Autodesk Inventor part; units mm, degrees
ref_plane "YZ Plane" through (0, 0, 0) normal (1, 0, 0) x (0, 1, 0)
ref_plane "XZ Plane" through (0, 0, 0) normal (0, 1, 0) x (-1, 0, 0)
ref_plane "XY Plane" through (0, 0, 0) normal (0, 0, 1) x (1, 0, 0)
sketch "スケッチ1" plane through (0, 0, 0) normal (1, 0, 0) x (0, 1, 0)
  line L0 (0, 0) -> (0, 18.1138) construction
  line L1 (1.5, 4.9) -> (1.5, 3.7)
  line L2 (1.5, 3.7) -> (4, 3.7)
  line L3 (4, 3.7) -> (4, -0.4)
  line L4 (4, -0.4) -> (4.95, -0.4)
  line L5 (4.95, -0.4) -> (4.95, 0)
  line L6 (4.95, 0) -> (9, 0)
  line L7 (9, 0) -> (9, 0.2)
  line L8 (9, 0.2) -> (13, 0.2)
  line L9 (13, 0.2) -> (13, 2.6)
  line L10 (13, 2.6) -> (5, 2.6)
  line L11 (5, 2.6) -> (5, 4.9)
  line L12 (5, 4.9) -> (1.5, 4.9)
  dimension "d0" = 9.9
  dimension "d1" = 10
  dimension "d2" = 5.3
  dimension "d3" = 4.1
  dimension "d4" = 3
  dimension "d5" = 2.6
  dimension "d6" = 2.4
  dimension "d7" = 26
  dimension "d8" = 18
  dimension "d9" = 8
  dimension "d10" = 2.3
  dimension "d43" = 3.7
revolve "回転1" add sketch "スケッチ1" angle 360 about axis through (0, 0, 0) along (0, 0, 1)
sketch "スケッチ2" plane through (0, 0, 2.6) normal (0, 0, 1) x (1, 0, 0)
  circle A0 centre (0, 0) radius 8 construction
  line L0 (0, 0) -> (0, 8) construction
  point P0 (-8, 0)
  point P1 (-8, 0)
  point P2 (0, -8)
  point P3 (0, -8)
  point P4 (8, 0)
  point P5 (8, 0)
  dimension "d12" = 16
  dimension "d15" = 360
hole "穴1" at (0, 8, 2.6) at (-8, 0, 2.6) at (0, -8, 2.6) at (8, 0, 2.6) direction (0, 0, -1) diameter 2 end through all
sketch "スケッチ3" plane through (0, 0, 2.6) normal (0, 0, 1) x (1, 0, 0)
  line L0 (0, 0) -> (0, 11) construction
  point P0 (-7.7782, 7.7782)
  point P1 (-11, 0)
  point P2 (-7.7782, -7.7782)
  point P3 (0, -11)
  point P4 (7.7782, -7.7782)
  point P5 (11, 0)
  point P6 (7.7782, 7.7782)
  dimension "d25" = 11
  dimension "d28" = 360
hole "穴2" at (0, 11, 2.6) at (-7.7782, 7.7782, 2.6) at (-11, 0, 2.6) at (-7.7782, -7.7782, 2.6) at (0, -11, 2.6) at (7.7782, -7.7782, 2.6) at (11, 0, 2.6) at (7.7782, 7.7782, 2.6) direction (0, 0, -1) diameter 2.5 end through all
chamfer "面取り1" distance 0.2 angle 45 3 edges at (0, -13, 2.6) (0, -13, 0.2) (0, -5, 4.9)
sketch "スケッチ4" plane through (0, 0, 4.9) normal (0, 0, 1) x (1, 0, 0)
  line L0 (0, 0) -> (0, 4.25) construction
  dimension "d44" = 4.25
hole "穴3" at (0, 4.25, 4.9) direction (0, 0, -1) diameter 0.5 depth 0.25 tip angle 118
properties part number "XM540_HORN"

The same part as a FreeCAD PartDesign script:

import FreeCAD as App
import Part
import Sketcher

V = App.Vector


def edges_at(feature, points):
    """Names of the edges that pass closest to the given points."""
    edges = feature.Shape.Edges
    near = lambda p: min(range(len(edges)), key=lambda i: edges[i].distToShape(Part.Vertex(*p))[0])
    return sorted({f"Edge{near(p) + 1}" for p in points})


def add_polygon(sketch, points):
    """Adds a closed chain of lines whose ends are joined by coincident constraints."""
    first, n = sketch.GeometryCount, len(points)
    for a, b in zip(points, points[1:] + points[:1]):
        sketch.addGeometry(Part.LineSegment(App.Vector(*a, 0), App.Vector(*b, 0)), False)
    for i in range(n):
        sketch.addConstraint(Sketcher.Constraint("Coincident", first + i, 2, first + (i + 1) % n, 1))

doc = App.newDocument("Part")
params = doc.addObject("Spreadsheet::Sheet", "Params")
for row, (alias, value) in enumerate([
    ("sketch1_width", "8 mm"),
    ("sketch1_height", "4.1 mm"),
    ("sketch1_height2", "2.4 mm"),
    ("sketch1_height3", "2.3 mm"),
    ("sketch1_width2", "4 mm"),
    ("revolution_angle", "360 deg"),
    ("sketch2_diameter", "2 mm"),
    ("hole_diameter", "2 mm"),
    ("sketch3_diameter", "2.5 mm"),
    ("hole2_diameter", "2.5 mm"),
    ("chamfer_size", "0.2 mm"),
    ("sketch4_diameter", "0.5 mm"),
    ("hole3_diameter", "0.5 mm"),
    ("hole3_depth", "0.25 mm"),
], start=1):
    params.set(f"A{row}", alias)
    params.set(f"B{row}", "=" + value)
    params.setAlias(f"B{row}", alias)

body = doc.addObject("PartDesign::Body", "Body")

# Sketch on YZ plane
sketch1 = body.newObject("Sketcher::SketchObject", "Sketch")
sketch1.AttachmentSupport = (doc.getObject("YZ_Plane"), [""])
sketch1.MapMode = "FlatFace"
add_polygon(sketch1, [(5, 4.9), (1.5, 4.9), (1.5, 3.7), (4, 3.7), (4, -0.4), (4.95, -0.4), (4.95, 0), (9, 0), (9, 0.2), (13, 0.2), (13, 2.6), (5, 2.6)])  # lines 0-11
sketch1.addConstraint(Sketcher.Constraint("Horizontal", 0))
sketch1.addConstraint(Sketcher.Constraint("Vertical", 1))
sketch1.addConstraint(Sketcher.Constraint("Horizontal", 2))
sketch1.addConstraint(Sketcher.Constraint("Vertical", 3))
sketch1.addConstraint(Sketcher.Constraint("Horizontal", 4))
sketch1.addConstraint(Sketcher.Constraint("Vertical", 5))
sketch1.addConstraint(Sketcher.Constraint("Horizontal", 6))
sketch1.addConstraint(Sketcher.Constraint("Vertical", 7))
sketch1.addConstraint(Sketcher.Constraint("Horizontal", 8))
sketch1.addConstraint(Sketcher.Constraint("Vertical", 9))
sketch1.addConstraint(Sketcher.Constraint("Horizontal", 10))
sketch1.addConstraint(Sketcher.Constraint("Vertical", 11))
sketch1.addConstraint(Sketcher.Constraint("PointOnObject", 5, 2, -1))
sketch1.addConstraint(Sketcher.Constraint("DistanceX", 10, 2, 10, 1, 8.0))
sketch1.addConstraint(Sketcher.Constraint("DistanceY", 3, 2, 3, 1, 4.1))
sketch1.addConstraint(Sketcher.Constraint("DistanceY", 9, 1, 9, 2, 2.4))
sketch1.addConstraint(Sketcher.Constraint("DistanceY", 11, 1, 11, 2, 2.3))
sketch1.addConstraint(Sketcher.Constraint("DistanceY", 4, 2, 9, 2, 3.0))
sketch1.addConstraint(Sketcher.Constraint("DistanceY", -1, 1, 1, 2, 3.7))
sketch1.addConstraint(Sketcher.Constraint("DistanceX", 8, 1, 8, 2, 4.0))
sketch1.addConstraint(Sketcher.Constraint("DistanceX", 0, 2, 0, 1, 3.5))
sketch1.addConstraint(Sketcher.Constraint("DistanceX", 2, 1, 2, 2, 2.5))
sketch1.addConstraint(Sketcher.Constraint("DistanceX", -1, 1, 2, 2, 4.0))
sketch1.addConstraint(Sketcher.Constraint("DistanceX", 4, 1, 4, 2, 0.95))
sketch1.setExpression("Constraints[25]", "Params.sketch1_width")
sketch1.setExpression("Constraints[26]", "Params.sketch1_height")
sketch1.setExpression("Constraints[27]", "Params.sketch1_height2")
sketch1.setExpression("Constraints[28]", "Params.sketch1_height3")
sketch1.setExpression("Constraints[31]", "Params.sketch1_width2")
revolution = body.newObject("PartDesign::Revolution", "Revolution")
revolution.Profile = sketch1
revolution.ReferenceAxis = (sketch1, ["V_Axis"])
revolution.setExpression("Angle", "Params.revolution_angle")

# Sketch on XY plane
sketch2 = body.newObject("Sketcher::SketchObject", "Sketch001")
sketch2.AttachmentSupport = (doc.getObject("XY_Plane"), [""])
sketch2.MapMode = "FlatFace"
sketch2.AttachmentOffset = App.Placement(V(0, 0, 2.6), App.Rotation())
sketch2.addGeometry(Part.Circle(V(0, 8, 0), V(0, 0, 1), 1), False)
sketch2.addGeometry(Part.Circle(V(-8, 0, 0), V(0, 0, 1), 1), False)
sketch2.addGeometry(Part.Circle(V(0, -8, 0), V(0, 0, 1), 1), False)
sketch2.addGeometry(Part.Circle(V(8, 0, 0), V(0, 0, 1), 1), False)
sketch2.addConstraint(Sketcher.Constraint("Equal", 0, 1))
sketch2.addConstraint(Sketcher.Constraint("Equal", 1, 2))
sketch2.addConstraint(Sketcher.Constraint("Equal", 2, 3))
sketch2.addConstraint(Sketcher.Constraint("Symmetric", 0, 3, 2, 3, -1, 1))
sketch2.addConstraint(Sketcher.Constraint("Symmetric", 1, 3, 3, 3, -1, 1))
sketch2.addConstraint(Sketcher.Constraint("PointOnObject", 0, 3, -2))
sketch2.addConstraint(Sketcher.Constraint("PointOnObject", 1, 3, -1))
sketch2.addConstraint(Sketcher.Constraint("Diameter", 0, 2.0))
sketch2.addConstraint(Sketcher.Constraint("DistanceY", -1, 1, 0, 3, 8.0))
sketch2.addConstraint(Sketcher.Constraint("DistanceX", 1, 3, -1, 1, 8.0))
sketch2.setExpression("Constraints[7]", "Params.sketch2_diameter")
doc.recompute()
hole = body.newObject("PartDesign::Hole", "Hole")
hole.Profile = sketch2
hole.ThreadType = "None"
hole.setExpression("Diameter", "Params.hole_diameter")
hole.DepthType = "ThroughAll"

# Sketch on XY plane
sketch3 = body.newObject("Sketcher::SketchObject", "Sketch002")
sketch3.AttachmentSupport = (doc.getObject("XY_Plane"), [""])
sketch3.MapMode = "FlatFace"
sketch3.AttachmentOffset = App.Placement(V(0, 0, 2.6), App.Rotation())
sketch3.addGeometry(Part.Circle(V(0, 11, 0), V(0, 0, 1), 1.25), False)
sketch3.addGeometry(Part.Circle(V(-7.7782, 7.7782, 0), V(0, 0, 1), 1.25), False)
sketch3.addGeometry(Part.Circle(V(-11, 0, 0), V(0, 0, 1), 1.25), False)
sketch3.addGeometry(Part.Circle(V(-7.7782, -7.7782, 0), V(0, 0, 1), 1.25), False)
sketch3.addGeometry(Part.Circle(V(0, -11, 0), V(0, 0, 1), 1.25), False)
sketch3.addGeometry(Part.Circle(V(7.7782, -7.7782, 0), V(0, 0, 1), 1.25), False)
sketch3.addGeometry(Part.Circle(V(11, 0, 0), V(0, 0, 1), 1.25), False)
sketch3.addGeometry(Part.Circle(V(7.7782, 7.7782, 0), V(0, 0, 1), 1.25), False)
sketch3.addConstraint(Sketcher.Constraint("Equal", 0, 1))
sketch3.addConstraint(Sketcher.Constraint("Equal", 1, 2))
sketch3.addConstraint(Sketcher.Constraint("Equal", 2, 3))
sketch3.addConstraint(Sketcher.Constraint("Equal", 3, 4))
sketch3.addConstraint(Sketcher.Constraint("Equal", 4, 5))
sketch3.addConstraint(Sketcher.Constraint("Equal", 5, 6))
sketch3.addConstraint(Sketcher.Constraint("Equal", 6, 7))
sketch3.addConstraint(Sketcher.Constraint("Symmetric", 0, 3, 4, 3, -1, 1))
sketch3.addConstraint(Sketcher.Constraint("Symmetric", 1, 3, 5, 3, -1, 1))
sketch3.addConstraint(Sketcher.Constraint("Symmetric", 2, 3, 6, 3, -1, 1))
sketch3.addConstraint(Sketcher.Constraint("Symmetric", 3, 3, 7, 3, -1, 1))
sketch3.addConstraint(Sketcher.Constraint("Symmetric", 3, 3, 5, 3, -2))
sketch3.addConstraint(Sketcher.Constraint("PointOnObject", 0, 3, -2))
sketch3.addConstraint(Sketcher.Constraint("PointOnObject", 2, 3, -1))
sketch3.addConstraint(Sketcher.Constraint("Diameter", 0, 2.5))
sketch3.addConstraint(Sketcher.Constraint("DistanceY", -1, 1, 0, 3, 11.0))
sketch3.addConstraint(Sketcher.Constraint("DistanceX", 2, 3, -1, 1, 11.0))
sketch3.addConstraint(Sketcher.Constraint("DistanceX", 1, 3, -1, 1, 7.7782))
sketch3.addConstraint(Sketcher.Constraint("DistanceY", -1, 1, 1, 3, 7.7782))
sketch3.setExpression("Constraints[14]", "Params.sketch3_diameter")
doc.recompute()
hole2 = body.newObject("PartDesign::Hole", "Hole001")
hole2.Profile = sketch3
hole2.ThreadType = "None"
hole2.setExpression("Diameter", "Params.hole2_diameter")
hole2.DepthType = "ThroughAll"
doc.recompute()

chamfer = body.newObject("PartDesign::Chamfer", "Chamfer")
chamfer.Base = (hole2, edges_at(hole2, [(0, -13, 2.6), (0, -13, 0.2), (0, -5, 4.9)]))
chamfer.setExpression("Size", "Params.chamfer_size")

# Sketch on XY plane
sketch4 = body.newObject("Sketcher::SketchObject", "Sketch003")
sketch4.AttachmentSupport = (doc.getObject("XY_Plane"), [""])
sketch4.MapMode = "FlatFace"
sketch4.AttachmentOffset = App.Placement(V(0, 0, 4.9), App.Rotation())
sketch4.addGeometry(Part.Circle(V(0, 4.25, 0), V(0, 0, 1), 0.25), False)
sketch4.addConstraint(Sketcher.Constraint("PointOnObject", 0, 3, -2))
sketch4.addConstraint(Sketcher.Constraint("Diameter", 0, 0.5))
sketch4.addConstraint(Sketcher.Constraint("DistanceY", -1, 1, 0, 3, 4.25))
sketch4.setExpression("Constraints[1]", "Params.sketch4_diameter")
doc.recompute()
hole3 = body.newObject("PartDesign::Hole", "Hole002")
hole3.Profile = sketch4
hole3.ThreadType = "None"
hole3.setExpression("Diameter", "Params.hole3_diameter")
hole3.DepthType = "Dimension"
hole3.setExpression("Depth", "Params.hole3_depth")
hole3.DrillPoint = "Angled"
hole3.DrillPointAngle = 118

doc.recompute()
